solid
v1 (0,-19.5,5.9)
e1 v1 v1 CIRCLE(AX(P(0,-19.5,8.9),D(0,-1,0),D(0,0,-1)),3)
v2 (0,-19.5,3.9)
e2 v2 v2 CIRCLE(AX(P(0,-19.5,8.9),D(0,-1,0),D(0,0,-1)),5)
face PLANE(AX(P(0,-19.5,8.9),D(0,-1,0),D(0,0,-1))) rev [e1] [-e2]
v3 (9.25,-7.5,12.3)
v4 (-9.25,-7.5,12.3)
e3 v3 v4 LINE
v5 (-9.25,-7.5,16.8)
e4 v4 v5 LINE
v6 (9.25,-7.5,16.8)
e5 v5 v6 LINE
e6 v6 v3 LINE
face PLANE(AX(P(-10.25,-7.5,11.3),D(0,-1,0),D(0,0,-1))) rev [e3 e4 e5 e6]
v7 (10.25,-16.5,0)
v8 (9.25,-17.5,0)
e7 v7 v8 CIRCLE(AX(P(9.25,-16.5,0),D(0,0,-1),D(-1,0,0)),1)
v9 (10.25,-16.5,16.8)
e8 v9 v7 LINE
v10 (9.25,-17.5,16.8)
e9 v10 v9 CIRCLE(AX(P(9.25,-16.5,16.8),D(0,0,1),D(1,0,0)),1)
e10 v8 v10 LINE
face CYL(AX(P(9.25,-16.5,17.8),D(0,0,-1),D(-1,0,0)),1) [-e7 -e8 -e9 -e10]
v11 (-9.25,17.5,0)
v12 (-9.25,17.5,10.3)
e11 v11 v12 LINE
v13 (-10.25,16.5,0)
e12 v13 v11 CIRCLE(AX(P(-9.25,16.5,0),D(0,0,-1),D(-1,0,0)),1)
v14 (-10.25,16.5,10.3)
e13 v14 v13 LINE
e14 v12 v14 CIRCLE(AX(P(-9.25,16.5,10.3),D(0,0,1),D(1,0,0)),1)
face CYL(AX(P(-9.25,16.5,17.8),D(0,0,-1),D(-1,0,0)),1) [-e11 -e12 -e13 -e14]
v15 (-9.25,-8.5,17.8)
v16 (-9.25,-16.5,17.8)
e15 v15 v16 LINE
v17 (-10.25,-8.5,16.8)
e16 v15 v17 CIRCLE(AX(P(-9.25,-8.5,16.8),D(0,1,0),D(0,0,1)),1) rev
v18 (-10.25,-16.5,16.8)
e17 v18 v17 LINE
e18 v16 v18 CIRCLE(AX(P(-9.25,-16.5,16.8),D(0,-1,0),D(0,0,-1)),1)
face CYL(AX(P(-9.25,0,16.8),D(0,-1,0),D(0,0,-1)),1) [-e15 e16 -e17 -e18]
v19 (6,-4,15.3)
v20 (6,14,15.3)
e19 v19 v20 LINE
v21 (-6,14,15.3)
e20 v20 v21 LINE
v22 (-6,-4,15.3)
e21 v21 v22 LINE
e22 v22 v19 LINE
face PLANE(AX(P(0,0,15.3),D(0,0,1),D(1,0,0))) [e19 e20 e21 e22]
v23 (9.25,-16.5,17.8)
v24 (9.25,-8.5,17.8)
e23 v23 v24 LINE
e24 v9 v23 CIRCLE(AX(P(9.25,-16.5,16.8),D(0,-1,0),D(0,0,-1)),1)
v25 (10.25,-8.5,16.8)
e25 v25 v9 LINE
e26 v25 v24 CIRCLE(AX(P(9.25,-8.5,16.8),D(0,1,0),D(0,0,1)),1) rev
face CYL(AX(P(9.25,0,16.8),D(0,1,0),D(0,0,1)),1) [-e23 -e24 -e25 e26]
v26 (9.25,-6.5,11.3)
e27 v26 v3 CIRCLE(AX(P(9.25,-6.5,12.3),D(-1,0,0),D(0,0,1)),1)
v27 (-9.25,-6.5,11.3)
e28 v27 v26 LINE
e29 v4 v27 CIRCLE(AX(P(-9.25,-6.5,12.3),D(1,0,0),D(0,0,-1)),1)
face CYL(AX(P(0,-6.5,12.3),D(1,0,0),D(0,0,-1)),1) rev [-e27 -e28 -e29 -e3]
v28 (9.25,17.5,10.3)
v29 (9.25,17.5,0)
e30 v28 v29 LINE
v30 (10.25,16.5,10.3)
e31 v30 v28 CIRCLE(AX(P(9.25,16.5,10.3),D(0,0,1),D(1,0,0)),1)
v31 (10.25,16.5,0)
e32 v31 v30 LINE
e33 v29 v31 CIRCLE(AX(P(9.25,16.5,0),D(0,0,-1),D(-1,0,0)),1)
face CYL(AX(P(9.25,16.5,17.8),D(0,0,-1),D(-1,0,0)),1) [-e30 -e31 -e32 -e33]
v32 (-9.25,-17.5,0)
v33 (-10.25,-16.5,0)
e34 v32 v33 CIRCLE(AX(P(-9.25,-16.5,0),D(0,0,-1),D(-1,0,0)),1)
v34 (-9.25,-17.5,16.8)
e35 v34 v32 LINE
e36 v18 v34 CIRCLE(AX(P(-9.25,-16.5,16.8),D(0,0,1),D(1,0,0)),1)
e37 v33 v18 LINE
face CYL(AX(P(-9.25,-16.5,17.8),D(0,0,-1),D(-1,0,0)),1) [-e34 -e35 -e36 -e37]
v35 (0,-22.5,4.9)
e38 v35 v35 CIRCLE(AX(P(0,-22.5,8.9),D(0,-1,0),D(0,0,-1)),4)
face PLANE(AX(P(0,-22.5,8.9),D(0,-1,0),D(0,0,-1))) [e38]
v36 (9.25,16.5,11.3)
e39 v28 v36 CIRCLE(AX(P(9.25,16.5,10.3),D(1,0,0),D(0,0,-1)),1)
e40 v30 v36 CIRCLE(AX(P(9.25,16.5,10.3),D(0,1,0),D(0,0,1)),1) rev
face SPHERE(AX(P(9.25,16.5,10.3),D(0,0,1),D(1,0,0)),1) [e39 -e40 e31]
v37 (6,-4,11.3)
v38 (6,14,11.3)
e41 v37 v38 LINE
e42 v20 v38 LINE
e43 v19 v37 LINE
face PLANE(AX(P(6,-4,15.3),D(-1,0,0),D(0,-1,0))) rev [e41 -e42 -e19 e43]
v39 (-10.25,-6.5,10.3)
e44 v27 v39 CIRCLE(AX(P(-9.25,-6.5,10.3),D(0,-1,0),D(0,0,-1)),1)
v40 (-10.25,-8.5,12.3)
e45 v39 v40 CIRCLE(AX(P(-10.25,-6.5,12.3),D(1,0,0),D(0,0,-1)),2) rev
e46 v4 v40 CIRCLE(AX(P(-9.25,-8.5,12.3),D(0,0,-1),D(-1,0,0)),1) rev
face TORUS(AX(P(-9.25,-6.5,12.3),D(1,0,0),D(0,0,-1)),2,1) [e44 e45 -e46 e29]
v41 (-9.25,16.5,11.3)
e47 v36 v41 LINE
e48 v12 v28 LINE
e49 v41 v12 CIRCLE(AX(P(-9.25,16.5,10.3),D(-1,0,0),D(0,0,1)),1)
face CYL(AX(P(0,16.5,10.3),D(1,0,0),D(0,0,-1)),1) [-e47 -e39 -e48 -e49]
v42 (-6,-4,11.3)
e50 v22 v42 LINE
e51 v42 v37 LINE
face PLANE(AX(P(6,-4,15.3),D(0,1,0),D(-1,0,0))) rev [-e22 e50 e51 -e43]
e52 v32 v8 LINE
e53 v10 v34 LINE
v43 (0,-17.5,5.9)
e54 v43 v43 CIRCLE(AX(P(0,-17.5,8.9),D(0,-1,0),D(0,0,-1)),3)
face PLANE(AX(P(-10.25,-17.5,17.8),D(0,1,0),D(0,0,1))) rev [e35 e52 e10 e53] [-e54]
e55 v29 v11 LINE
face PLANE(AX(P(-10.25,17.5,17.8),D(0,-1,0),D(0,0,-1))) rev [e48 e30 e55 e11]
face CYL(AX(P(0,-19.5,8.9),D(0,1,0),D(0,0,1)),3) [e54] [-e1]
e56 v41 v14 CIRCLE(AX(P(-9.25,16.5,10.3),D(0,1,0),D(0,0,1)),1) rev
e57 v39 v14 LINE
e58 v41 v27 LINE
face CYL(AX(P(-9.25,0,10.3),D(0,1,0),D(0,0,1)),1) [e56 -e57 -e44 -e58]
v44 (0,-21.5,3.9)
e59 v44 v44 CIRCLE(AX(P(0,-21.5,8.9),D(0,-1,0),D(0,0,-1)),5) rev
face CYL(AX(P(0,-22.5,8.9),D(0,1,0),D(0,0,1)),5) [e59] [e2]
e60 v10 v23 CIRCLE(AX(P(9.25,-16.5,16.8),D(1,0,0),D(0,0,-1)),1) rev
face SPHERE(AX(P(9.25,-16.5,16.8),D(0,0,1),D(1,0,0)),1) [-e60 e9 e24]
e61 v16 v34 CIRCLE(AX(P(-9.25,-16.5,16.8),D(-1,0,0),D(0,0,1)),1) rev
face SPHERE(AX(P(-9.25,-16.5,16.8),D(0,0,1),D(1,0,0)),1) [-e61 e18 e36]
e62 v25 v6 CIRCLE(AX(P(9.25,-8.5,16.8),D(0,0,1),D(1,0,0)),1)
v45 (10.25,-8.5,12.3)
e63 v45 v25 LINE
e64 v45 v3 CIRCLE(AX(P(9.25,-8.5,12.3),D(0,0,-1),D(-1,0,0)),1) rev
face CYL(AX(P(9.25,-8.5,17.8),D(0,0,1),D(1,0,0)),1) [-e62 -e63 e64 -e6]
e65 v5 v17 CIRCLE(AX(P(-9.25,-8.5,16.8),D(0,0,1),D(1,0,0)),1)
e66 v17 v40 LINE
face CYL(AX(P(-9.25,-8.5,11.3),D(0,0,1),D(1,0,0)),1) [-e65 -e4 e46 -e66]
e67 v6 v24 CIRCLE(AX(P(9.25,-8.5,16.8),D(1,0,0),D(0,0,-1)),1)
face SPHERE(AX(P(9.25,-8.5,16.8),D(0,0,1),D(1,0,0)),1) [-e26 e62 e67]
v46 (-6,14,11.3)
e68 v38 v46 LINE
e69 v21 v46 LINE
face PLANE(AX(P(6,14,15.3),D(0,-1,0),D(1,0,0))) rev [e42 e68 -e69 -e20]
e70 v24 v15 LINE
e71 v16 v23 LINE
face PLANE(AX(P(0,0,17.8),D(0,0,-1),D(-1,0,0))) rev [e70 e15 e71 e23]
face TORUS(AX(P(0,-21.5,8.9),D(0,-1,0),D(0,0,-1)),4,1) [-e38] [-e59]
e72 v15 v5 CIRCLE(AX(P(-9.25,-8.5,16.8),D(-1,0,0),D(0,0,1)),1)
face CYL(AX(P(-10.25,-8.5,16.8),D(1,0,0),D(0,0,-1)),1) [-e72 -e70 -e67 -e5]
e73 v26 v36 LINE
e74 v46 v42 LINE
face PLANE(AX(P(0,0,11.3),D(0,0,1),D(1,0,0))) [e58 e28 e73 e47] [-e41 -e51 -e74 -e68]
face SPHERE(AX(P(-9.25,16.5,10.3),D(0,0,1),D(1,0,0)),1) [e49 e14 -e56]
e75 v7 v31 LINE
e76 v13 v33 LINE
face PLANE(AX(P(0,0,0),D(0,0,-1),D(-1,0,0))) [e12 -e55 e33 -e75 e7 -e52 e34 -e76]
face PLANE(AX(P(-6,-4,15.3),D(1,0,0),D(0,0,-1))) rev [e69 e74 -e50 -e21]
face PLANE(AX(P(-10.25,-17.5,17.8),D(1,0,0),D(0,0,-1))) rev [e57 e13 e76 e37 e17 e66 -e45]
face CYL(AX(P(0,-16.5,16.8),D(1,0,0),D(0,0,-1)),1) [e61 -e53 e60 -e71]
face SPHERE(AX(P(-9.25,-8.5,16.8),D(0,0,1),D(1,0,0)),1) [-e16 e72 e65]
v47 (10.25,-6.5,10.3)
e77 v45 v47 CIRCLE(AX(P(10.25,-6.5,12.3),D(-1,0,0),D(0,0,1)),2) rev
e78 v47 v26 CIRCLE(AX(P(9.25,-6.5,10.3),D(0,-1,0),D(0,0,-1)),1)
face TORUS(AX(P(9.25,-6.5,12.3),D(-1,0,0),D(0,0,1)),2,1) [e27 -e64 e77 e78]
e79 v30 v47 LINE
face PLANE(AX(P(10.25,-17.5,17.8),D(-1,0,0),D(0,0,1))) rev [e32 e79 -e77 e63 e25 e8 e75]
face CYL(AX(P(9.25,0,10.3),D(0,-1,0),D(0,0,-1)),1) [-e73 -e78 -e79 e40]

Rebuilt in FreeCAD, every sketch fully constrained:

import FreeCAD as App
import Part
import Sketcher
from FreeCAD import Vector


def edges_at(feature, points):
    """Names of the edges that pass closest to the given points."""
    edges = feature.Shape.Edges
    near = lambda p: min(range(len(edges)), key=lambda i: edges[i].distToShape(Part.Vertex(*p))[0])
    return sorted({f"Edge{near(p) + 1}" for p in points})

doc = App.newDocument("Part")
body = doc.addObject("PartDesign::Body", "Body")

# Sketch on XY plane
sketch1 = doc.addObject("Sketcher::SketchObject", "Sketch")
body.addObject(sketch1)
sketch1.AttachmentSupport = (doc.XY_Plane, [""])
sketch1.MapMode = "FlatFace"
sketch1.addGeometry(Part.LineSegment(Vector(-10.25, 17.5, 0), Vector(-10.25, -17.5, 0)), False)
sketch1.addGeometry(Part.LineSegment(Vector(-10.25, -17.5, 0), Vector(10.25, -17.5, 0)), False)
sketch1.addGeometry(Part.LineSegment(Vector(10.25, -17.5, 0), Vector(10.25, 17.5, 0)), False)
sketch1.addGeometry(Part.LineSegment(Vector(10.25, 17.5, 0), Vector(-10.25, 17.5, 0)), False)
sketch1.addConstraint(Sketcher.Constraint("Coincident", 0, 2, 1, 1))
sketch1.addConstraint(Sketcher.Constraint("Coincident", 1, 2, 2, 1))
sketch1.addConstraint(Sketcher.Constraint("Coincident", 2, 2, 3, 1))
sketch1.addConstraint(Sketcher.Constraint("Coincident", 3, 2, 0, 1))
sketch1.addConstraint(Sketcher.Constraint("Vertical", 0))
sketch1.addConstraint(Sketcher.Constraint("Horizontal", 1))
sketch1.addConstraint(Sketcher.Constraint("Vertical", 2))
sketch1.addConstraint(Sketcher.Constraint("Horizontal", 3))
sketch1.addConstraint(Sketcher.Constraint("Symmetric", 0, 2, 2, 2, -1, 1))
sketch1.addConstraint(Sketcher.Constraint("DistanceY", 0, 2, 0, 1, 35.0))
sketch1.addConstraint(Sketcher.Constraint("DistanceX", 1, 1, 1, 2, 20.5))
pad1 = doc.addObject("PartDesign::Pad", "Pad")
body.addObject(pad1)
pad1.Profile = sketch1
pad1.Length = 17.8

# Sketch on XZ plane
sketch2 = doc.addObject("Sketcher::SketchObject", "Sketch001")
body.addObject(sketch2)
sketch2.AttachmentSupport = (doc.XZ_Plane, [""])
sketch2.MapMode = "FlatFace"
sketch2.AttachmentOffset = App.Placement(Vector(0, 0, 17.5), App.Rotation())
sketch2.addGeometry(Part.Circle(Vector(0, 8.9, 0), Vector(0, 0, 1), 3), False)
sketch2.addConstraint(Sketcher.Constraint("PointOnObject", 0, 3, -2))
sketch2.addConstraint(Sketcher.Constraint("Diameter", 0, 6.0))
sketch2.addConstraint(Sketcher.Constraint("DistanceY", -1, 1, 0, 3, 8.9))
pad2 = doc.addObject("PartDesign::Pad", "Pad001")
body.addObject(pad2)
pad2.Profile = sketch2
pad2.Length = 2

# Sketch on XZ plane
sketch3 = doc.addObject("Sketcher::SketchObject", "Sketch002")
body.addObject(sketch3)
sketch3.AttachmentSupport = (doc.XZ_Plane, [""])
sketch3.MapMode = "FlatFace"
sketch3.AttachmentOffset = App.Placement(Vector(0, 0, 19.5), App.Rotation())
sketch3.addGeometry(Part.Circle(Vector(0, 8.9, 0), Vector(0, 0, 1), 5), False)
sketch3.addConstraint(Sketcher.Constraint("PointOnObject", 0, 3, -2))
sketch3.addConstraint(Sketcher.Constraint("Diameter", 0, 10.0))
sketch3.addConstraint(Sketcher.Constraint("DistanceY", -1, 1, 0, 3, 8.9))
pad3 = doc.addObject("PartDesign::Pad", "Pad002")
body.addObject(pad3)
pad3.Profile = sketch3
pad3.Length = 3

# Sketch on XY plane
sketch4 = doc.addObject("Sketcher::SketchObject", "Sketch003")
body.addObject(sketch4)
sketch4.AttachmentSupport = (doc.XY_Plane, [""])
sketch4.MapMode = "FlatFace"
sketch4.AttachmentOffset = App.Placement(Vector(0, 0, 17.8), App.Rotation())
sketch4.addGeometry(Part.LineSegment(Vector(-10.25, 17.5, 0), Vector(-10.25, -7.5, 0)), False)
sketch4.addGeometry(Part.LineSegment(Vector(-10.25, -7.5, 0), Vector(10.25, -7.5, 0)), False)
sketch4.addGeometry(Part.LineSegment(Vector(10.25, -7.5, 0), Vector(10.25, 17.5, 0)), False)
sketch4.addGeometry(Part.LineSegment(Vector(10.25, 17.5, 0), Vector(-10.25, 17.5, 0)), False)
sketch4.addConstraint(Sketcher.Constraint("Coincident", 0, 2, 1, 1))
sketch4.addConstraint(Sketcher.Constraint("Coincident", 1, 2, 2, 1))
sketch4.addConstraint(Sketcher.Constraint("Coincident", 2, 2, 3, 1))
sketch4.addConstraint(Sketcher.Constraint("Coincident", 3, 2, 0, 1))
sketch4.addConstraint(Sketcher.Constraint("Vertical", 0))
sketch4.addConstraint(Sketcher.Constraint("Horizontal", 1))
sketch4.addConstraint(Sketcher.Constraint("Vertical", 2))
sketch4.addConstraint(Sketcher.Constraint("Horizontal", 3))
sketch4.addConstraint(Sketcher.Constraint("DistanceY", 0, 2, 0, 1, 25.0))
sketch4.addConstraint(Sketcher.Constraint("DistanceX", 1, 1, 1, 2, 20.5))
sketch4.addConstraint(Sketcher.Constraint("DistanceY", 0, 2, -1, 1, 7.5))
sketch4.addConstraint(Sketcher.Constraint("DistanceX", 0, 2, -1, 1, 10.25))
pocket1 = doc.addObject("PartDesign::Pocket", "Pocket")
body.addObject(pocket1)
pocket1.Profile = sketch4
pocket1.Length = 6.5
doc.recompute()

fillet = doc.addObject("PartDesign::Fillet", "Fillet")
body.addObject(fillet)
fillet.Base = (pocket1, edges_at(pocket1, [
    (0, -17.5, 17.8),
    (-5, -22.5, 8.9),
    (-10.25, -12.5, 17.8),
    (-10.25, 17.5, 5.65),
    (10.25, 17.5, 5.65),
    (-10.25, 5, 11.3),
    (-10.25, -7.5, 14.55),
    (0, 17.5, 11.3),
    (10.25, 5, 11.3),
    (0, -7.5, 11.3),
    (10.25, -7.5, 14.55),
    (0, -7.5, 17.8),
    (10.25, -12.5, 17.8),
    (10.25, -17.5, 8.9),
    (-10.25, -17.5, 8.9),
]))
fillet.Radius = 1

# Sketch on XY plane
sketch5 = doc.addObject("Sketcher::SketchObject", "Sketch004")
body.addObject(sketch5)
sketch5.AttachmentSupport = (doc.XY_Plane, [""])
sketch5.MapMode = "FlatFace"
sketch5.AttachmentOffset = App.Placement(Vector(0, 0, 11.3), App.Rotation())
sketch5.addGeometry(Part.LineSegment(Vector(-6, 14, 0), Vector(-6, -4, 0)), False)
sketch5.addGeometry(Part.LineSegment(Vector(-6, -4, 0), Vector(6, -4, 0)), False)
sketch5.addGeometry(Part.LineSegment(Vector(6, -4, 0), Vector(6, 14, 0)), False)
sketch5.addGeometry(Part.LineSegment(Vector(6, 14, 0), Vector(-6, 14, 0)), False)
sketch5.addConstraint(Sketcher.Constraint("Coincident", 0, 2, 1, 1))
sketch5.addConstraint(Sketcher.Constraint("Coincident", 1, 2, 2, 1))
sketch5.addConstraint(Sketcher.Constraint("Coincident", 2, 2, 3, 1))
sketch5.addConstraint(Sketcher.Constraint("Coincident", 3, 2, 0, 1))
sketch5.addConstraint(Sketcher.Constraint("Vertical", 0))
sketch5.addConstraint(Sketcher.Constraint("Horizontal", 1))
sketch5.addConstraint(Sketcher.Constraint("Vertical", 2))
sketch5.addConstraint(Sketcher.Constraint("Horizontal", 3))
sketch5.addConstraint(Sketcher.Constraint("DistanceX", 1, 1, 1, 2, 12.0))
sketch5.addConstraint(Sketcher.Constraint("DistanceY", 0, 2, 0, 1, 18.0))
sketch5.addConstraint(Sketcher.Constraint("DistanceX", 0, 2, -1, 1, 6.0))
sketch5.addConstraint(Sketcher.Constraint("DistanceY", 0, 2, -1, 1, 4.0))
pad4 = doc.addObject("PartDesign::Pad", "Pad003")
body.addObject(pad4)
pad4.Profile = sketch5
pad4.Length = 4

doc.recompute()
